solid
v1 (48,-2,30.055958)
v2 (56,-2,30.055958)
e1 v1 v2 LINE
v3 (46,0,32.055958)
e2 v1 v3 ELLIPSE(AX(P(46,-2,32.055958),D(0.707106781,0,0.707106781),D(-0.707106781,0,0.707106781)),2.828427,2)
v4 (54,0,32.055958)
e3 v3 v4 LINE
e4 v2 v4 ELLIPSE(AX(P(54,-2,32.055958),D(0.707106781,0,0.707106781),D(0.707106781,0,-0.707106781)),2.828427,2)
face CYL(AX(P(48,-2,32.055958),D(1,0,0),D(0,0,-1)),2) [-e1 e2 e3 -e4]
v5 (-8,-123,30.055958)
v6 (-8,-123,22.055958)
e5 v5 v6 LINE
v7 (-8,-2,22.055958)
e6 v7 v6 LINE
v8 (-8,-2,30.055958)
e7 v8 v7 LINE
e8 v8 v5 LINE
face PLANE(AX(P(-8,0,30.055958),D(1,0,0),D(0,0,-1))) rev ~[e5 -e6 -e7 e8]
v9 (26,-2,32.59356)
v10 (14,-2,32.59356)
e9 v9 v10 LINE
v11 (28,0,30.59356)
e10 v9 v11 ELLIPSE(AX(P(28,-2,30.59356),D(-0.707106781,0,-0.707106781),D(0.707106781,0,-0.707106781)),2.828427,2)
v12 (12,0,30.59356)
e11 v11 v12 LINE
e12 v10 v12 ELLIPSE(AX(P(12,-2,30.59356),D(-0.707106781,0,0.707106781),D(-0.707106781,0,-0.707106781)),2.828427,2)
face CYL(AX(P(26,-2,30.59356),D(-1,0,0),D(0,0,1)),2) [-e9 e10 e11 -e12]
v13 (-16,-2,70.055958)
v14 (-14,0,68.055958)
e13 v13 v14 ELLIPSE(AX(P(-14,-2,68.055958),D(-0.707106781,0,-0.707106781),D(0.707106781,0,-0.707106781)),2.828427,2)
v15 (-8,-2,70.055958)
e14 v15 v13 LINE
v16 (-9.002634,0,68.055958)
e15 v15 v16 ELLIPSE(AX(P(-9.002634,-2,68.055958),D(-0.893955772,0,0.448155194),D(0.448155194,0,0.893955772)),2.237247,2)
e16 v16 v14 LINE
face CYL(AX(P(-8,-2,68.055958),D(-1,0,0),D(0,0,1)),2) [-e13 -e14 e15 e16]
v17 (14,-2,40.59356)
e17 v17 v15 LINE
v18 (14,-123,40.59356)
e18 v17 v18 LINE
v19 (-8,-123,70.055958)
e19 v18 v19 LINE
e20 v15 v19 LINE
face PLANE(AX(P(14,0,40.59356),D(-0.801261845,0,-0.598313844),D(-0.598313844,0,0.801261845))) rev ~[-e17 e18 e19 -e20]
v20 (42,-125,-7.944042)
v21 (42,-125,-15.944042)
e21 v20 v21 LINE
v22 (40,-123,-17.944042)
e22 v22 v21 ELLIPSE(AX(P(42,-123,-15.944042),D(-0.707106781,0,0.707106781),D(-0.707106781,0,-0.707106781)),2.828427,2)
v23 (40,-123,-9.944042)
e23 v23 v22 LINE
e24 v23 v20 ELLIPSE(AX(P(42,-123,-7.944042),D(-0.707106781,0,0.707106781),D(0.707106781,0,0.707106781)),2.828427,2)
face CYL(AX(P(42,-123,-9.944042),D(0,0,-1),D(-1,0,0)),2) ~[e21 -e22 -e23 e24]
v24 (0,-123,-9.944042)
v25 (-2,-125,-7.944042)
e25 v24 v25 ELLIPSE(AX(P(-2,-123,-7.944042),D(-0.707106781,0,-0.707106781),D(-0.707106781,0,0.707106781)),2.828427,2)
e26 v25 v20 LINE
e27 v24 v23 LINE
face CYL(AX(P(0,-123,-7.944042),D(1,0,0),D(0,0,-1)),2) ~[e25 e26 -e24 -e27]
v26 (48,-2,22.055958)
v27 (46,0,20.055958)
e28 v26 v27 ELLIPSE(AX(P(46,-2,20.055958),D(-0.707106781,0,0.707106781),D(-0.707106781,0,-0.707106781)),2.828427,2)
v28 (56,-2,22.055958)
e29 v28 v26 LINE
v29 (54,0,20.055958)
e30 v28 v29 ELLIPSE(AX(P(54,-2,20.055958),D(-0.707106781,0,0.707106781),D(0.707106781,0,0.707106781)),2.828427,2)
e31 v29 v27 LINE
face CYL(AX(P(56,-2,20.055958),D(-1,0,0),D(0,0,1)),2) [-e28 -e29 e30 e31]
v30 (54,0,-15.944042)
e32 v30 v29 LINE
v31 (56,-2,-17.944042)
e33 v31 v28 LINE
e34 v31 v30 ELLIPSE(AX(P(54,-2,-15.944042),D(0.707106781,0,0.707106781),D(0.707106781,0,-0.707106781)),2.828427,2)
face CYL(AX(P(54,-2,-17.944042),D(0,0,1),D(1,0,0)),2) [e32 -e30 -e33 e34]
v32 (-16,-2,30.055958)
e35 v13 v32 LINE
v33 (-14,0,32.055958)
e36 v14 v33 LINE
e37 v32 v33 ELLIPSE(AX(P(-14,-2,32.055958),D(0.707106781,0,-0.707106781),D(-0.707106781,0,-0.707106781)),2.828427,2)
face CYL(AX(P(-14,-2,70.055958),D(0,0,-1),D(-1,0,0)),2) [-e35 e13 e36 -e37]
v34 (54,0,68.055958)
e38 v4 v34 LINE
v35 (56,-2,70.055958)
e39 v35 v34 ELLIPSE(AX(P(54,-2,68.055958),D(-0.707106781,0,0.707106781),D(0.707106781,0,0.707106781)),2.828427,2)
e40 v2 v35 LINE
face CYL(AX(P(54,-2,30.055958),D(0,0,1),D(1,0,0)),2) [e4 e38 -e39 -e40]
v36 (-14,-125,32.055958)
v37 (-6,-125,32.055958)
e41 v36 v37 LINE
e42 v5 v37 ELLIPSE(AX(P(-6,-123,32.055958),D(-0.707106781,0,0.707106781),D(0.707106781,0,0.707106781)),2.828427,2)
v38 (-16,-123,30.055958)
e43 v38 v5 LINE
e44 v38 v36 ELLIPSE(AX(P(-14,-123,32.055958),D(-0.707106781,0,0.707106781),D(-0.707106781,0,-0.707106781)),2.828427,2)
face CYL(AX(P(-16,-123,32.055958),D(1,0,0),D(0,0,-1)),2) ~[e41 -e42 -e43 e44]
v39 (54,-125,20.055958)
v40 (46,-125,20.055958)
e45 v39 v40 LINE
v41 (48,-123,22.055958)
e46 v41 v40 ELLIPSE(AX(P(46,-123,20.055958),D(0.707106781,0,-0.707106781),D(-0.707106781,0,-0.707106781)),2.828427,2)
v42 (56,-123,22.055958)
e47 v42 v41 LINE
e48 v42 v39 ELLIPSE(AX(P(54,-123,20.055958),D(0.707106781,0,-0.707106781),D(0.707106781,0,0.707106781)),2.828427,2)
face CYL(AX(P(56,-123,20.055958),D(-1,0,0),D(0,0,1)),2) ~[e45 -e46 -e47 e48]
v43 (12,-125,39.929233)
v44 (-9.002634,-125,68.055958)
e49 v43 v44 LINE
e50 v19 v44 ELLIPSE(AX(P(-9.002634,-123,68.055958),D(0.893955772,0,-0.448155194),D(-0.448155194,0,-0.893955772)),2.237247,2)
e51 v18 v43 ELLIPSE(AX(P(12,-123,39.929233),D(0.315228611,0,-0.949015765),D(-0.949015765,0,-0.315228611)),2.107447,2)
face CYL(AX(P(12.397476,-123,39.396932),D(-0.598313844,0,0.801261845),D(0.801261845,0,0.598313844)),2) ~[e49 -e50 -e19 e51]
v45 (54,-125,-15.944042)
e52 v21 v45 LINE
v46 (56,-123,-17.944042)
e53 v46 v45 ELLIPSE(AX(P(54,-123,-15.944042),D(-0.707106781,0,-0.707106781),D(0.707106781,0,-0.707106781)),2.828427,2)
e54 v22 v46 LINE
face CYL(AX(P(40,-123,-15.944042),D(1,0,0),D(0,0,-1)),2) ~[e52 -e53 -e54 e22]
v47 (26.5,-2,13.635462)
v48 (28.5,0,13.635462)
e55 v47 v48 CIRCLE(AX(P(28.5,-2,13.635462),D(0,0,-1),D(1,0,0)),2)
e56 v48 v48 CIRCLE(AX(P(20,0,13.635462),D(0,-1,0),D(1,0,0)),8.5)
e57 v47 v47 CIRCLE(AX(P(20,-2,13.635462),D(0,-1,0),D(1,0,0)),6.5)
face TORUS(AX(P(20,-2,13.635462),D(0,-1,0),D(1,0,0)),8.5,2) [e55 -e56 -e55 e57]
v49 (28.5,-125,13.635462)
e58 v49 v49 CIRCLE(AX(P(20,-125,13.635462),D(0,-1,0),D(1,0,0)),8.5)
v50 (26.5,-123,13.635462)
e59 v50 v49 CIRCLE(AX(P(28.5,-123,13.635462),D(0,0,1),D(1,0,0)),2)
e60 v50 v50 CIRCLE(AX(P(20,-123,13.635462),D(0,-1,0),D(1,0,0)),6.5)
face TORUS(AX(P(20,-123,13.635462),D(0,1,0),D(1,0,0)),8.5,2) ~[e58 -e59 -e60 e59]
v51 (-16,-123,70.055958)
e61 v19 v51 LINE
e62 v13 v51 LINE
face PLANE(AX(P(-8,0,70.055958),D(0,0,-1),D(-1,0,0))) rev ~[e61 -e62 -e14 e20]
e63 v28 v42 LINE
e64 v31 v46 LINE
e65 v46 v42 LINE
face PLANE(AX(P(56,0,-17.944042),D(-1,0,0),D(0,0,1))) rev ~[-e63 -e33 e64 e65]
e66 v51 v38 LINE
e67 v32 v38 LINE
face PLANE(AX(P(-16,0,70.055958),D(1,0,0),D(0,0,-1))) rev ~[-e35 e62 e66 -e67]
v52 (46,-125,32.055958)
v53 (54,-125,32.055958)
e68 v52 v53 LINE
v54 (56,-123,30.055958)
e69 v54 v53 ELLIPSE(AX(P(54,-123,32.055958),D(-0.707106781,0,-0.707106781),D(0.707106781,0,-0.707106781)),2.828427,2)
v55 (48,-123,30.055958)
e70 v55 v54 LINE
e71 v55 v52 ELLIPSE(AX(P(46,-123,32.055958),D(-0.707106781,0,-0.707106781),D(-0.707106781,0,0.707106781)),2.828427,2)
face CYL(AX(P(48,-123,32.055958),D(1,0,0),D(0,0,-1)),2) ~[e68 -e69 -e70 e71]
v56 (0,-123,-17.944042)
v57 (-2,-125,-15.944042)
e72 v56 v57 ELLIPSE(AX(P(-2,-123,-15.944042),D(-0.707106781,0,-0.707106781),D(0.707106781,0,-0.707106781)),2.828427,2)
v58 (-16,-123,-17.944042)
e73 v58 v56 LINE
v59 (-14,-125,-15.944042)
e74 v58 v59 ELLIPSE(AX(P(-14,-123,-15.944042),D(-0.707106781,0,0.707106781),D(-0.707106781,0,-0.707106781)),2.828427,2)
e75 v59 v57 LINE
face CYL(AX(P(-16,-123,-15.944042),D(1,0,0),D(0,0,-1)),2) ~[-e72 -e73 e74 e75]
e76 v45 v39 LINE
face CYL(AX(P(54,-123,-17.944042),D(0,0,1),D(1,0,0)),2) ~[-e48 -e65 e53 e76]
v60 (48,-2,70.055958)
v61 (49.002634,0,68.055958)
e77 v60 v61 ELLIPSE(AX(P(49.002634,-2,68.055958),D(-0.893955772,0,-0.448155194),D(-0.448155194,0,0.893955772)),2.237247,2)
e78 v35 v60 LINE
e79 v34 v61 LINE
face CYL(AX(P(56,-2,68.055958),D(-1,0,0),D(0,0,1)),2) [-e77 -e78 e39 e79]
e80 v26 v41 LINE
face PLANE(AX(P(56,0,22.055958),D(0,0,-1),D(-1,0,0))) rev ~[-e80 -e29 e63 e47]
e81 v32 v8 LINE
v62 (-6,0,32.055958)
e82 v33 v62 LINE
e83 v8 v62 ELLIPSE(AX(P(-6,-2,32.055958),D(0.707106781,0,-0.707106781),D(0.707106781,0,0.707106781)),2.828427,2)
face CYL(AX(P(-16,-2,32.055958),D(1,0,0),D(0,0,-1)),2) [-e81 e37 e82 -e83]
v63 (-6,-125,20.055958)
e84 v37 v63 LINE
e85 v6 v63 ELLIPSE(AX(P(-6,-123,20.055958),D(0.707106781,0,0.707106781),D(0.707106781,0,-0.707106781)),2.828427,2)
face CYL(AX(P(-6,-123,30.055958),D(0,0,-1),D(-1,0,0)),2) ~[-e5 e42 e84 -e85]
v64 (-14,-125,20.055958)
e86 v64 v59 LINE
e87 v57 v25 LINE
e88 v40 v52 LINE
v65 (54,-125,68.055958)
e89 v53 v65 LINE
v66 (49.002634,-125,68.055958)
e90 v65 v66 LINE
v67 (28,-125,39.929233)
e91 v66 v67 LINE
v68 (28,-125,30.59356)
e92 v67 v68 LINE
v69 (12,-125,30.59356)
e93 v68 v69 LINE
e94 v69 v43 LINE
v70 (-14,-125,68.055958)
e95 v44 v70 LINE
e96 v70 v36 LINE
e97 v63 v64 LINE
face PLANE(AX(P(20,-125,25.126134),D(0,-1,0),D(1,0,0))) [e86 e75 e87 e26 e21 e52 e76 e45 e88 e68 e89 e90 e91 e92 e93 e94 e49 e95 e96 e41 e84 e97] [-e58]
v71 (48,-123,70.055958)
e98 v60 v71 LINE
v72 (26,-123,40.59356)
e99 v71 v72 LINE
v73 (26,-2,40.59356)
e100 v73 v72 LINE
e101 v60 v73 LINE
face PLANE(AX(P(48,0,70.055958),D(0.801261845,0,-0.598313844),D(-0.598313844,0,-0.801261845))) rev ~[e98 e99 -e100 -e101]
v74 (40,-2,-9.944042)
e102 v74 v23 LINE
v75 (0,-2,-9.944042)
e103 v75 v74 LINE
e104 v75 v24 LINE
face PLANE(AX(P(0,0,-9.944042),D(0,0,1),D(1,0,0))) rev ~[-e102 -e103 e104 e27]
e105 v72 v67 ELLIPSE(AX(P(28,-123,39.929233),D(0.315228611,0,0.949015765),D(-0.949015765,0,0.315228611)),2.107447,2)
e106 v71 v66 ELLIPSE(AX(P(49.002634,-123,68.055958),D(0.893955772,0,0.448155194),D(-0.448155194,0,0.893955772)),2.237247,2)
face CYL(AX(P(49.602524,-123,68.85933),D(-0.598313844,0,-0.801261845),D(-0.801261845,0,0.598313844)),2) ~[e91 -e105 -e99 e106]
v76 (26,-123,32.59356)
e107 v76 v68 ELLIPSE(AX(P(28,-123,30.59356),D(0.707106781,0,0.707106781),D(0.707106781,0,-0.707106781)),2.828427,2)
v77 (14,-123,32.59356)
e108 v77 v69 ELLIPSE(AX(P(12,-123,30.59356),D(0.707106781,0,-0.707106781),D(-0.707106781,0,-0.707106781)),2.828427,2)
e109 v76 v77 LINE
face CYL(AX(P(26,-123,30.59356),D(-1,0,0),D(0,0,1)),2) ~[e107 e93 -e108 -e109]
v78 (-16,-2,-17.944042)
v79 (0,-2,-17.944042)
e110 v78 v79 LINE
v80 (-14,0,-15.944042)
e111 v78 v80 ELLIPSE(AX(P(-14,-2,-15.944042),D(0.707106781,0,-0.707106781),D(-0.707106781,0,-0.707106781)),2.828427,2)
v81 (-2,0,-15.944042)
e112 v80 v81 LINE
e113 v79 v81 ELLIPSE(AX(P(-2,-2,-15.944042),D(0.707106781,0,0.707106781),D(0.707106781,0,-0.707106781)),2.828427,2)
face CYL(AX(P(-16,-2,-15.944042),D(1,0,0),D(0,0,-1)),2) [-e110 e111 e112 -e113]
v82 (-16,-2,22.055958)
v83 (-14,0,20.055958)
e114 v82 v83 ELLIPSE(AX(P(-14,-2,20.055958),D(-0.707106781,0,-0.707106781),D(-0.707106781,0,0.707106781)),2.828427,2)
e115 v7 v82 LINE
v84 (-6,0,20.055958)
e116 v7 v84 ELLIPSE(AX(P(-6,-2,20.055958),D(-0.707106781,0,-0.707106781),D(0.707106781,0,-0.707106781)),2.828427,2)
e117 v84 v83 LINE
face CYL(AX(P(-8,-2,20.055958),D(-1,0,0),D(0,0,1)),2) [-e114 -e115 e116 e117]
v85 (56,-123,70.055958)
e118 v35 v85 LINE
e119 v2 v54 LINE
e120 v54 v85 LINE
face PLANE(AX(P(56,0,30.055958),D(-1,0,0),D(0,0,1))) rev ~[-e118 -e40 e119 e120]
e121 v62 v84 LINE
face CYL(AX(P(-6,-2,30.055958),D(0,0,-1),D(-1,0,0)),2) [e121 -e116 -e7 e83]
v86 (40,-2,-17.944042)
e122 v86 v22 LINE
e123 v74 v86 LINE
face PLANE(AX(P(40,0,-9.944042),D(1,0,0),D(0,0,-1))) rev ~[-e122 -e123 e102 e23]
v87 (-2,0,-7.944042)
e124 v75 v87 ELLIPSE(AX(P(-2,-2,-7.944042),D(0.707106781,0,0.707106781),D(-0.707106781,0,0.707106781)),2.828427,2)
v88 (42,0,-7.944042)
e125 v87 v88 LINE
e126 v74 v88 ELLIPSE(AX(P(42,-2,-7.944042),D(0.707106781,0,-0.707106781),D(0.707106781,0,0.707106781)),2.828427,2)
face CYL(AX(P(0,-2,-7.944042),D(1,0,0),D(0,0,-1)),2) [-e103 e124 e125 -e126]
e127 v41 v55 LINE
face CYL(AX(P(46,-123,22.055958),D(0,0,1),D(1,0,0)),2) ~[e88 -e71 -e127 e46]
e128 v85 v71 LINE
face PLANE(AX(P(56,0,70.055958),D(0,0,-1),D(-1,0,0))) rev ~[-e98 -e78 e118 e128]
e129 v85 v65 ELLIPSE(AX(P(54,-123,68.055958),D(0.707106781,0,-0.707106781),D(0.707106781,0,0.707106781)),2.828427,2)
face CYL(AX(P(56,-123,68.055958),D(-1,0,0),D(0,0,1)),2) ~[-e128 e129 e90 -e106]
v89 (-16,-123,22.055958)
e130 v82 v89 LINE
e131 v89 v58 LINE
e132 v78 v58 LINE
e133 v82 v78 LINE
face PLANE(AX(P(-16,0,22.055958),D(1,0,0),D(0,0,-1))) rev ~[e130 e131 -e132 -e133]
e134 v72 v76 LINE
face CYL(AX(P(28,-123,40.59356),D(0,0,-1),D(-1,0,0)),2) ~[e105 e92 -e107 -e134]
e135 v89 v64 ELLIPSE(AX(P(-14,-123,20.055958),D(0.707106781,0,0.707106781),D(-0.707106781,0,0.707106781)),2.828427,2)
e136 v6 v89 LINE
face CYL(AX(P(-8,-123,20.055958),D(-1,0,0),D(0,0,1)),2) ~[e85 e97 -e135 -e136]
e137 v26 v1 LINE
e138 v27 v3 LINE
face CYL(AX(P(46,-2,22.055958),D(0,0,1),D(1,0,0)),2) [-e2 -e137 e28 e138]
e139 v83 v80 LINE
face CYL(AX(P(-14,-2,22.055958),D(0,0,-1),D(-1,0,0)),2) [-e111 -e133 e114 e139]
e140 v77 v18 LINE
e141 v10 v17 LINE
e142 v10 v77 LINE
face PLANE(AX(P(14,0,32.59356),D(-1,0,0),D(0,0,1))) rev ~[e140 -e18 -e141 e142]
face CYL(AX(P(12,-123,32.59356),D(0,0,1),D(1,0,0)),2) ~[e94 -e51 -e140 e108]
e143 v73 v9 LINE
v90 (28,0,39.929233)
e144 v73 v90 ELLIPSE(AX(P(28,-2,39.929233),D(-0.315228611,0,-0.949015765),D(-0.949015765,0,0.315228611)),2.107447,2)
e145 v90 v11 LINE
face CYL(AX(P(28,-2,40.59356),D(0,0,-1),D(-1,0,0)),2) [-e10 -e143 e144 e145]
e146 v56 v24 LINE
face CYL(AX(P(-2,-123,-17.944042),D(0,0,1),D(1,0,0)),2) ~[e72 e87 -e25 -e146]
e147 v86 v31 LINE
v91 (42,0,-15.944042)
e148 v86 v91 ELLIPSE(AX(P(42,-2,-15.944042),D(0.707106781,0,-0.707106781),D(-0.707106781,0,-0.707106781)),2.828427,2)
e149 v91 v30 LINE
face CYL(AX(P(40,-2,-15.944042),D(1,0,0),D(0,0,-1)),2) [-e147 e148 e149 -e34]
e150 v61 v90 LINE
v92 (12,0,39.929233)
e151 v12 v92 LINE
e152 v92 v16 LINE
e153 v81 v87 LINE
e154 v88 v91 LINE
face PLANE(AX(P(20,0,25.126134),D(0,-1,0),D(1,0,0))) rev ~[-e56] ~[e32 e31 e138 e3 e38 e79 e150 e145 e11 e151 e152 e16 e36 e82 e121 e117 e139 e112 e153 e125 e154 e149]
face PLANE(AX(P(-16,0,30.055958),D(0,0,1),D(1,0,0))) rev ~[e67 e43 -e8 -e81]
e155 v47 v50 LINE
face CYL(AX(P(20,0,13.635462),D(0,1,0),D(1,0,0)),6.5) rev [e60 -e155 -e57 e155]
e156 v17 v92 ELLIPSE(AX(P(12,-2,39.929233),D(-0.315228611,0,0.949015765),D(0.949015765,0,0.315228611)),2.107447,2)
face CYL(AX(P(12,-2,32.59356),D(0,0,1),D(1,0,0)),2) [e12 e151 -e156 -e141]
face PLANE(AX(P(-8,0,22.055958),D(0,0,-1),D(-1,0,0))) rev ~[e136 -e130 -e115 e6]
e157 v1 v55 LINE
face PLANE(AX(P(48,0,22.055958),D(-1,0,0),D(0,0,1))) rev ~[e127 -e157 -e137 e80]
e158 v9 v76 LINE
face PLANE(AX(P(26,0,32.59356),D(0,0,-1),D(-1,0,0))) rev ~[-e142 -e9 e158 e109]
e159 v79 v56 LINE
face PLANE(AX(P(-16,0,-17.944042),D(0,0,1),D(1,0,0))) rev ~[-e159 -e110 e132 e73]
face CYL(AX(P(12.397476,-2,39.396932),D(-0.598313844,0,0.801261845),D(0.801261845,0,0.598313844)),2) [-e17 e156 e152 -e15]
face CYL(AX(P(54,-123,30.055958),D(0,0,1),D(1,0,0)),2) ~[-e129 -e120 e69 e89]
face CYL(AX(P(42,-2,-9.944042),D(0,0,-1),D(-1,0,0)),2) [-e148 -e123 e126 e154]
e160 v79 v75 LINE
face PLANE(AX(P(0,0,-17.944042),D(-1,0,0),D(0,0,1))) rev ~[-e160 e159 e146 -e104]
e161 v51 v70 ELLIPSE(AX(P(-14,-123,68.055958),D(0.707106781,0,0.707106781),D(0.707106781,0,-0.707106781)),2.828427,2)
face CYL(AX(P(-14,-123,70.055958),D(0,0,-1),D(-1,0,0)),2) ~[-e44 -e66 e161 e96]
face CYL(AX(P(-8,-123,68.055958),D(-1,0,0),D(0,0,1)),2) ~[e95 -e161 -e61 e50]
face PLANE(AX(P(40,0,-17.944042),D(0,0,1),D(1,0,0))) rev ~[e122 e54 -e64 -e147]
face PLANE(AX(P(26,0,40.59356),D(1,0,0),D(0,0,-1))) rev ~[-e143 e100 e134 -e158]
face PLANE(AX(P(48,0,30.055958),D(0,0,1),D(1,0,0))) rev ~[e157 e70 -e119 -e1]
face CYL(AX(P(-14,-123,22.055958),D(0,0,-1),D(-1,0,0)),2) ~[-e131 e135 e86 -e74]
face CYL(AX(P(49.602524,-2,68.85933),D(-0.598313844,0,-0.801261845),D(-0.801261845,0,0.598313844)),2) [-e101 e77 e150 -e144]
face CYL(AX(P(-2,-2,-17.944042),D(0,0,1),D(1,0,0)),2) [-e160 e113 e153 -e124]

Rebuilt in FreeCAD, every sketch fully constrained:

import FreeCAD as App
import Part
import Sketcher
from FreeCAD import Vector


def edges_at(feature, points):
    """Names of the edges that pass closest to the given points."""
    edges = feature.Shape.Edges
    near = lambda p: min(range(len(edges)), key=lambda i: edges[i].distToShape(Part.Vertex(*p))[0])
    return sorted({f"Edge{near(p) + 1}" for p in points})


def add_polygon(sketch, points):
    """Adds a closed chain of lines whose ends are joined by coincident constraints."""
    first, n = sketch.GeometryCount, len(points)
    for a, b in zip(points, points[1:] + points[:1]):
        sketch.addGeometry(Part.LineSegment(App.Vector(*a, 0), App.Vector(*b, 0)), False)
    for i in range(n):
        sketch.addConstraint(Sketcher.Constraint("Coincident", first + i, 2, first + (i + 1) % n, 1))

doc = App.newDocument("Part")
body = doc.addObject("PartDesign::Body", "Body")

sketch1 = body.newObject("Sketcher::SketchObject", "Sketch")
sketch1.AttachmentSupport = (doc.getObject("XZ_Plane"), [""])
sketch1.MapMode = "FlatFace"
add_polygon(sketch1, [(-16, 22), (-16, -18), (0, -18), (0, -10), (40, -10), (40, -18), (56, -18), (56, 22), (48, 22), (48, 30), (56, 30), (56, 70), (48, 70), (26, 41), (26, 33), (14, 33), (14, 41), (-8, 70), (-16, 70), (-16, 30), (-8, 30), (-8, 22)])
sketch1.addGeometry(Part.Circle(Vector(20, 14, 0), Vector(0, 0, 1), 6), False)
sketch1.addConstraint([
    Sketcher.Constraint("Vertical", 0),
    Sketcher.Constraint("Horizontal", 1),
    Sketcher.Constraint("Vertical", 2),
    Sketcher.Constraint("Horizontal", 3),
    Sketcher.Constraint("Vertical", 4),
    Sketcher.Constraint("Horizontal", 5),
    Sketcher.Constraint("Vertical", 6),
    Sketcher.Constraint("Horizontal", 7),
    Sketcher.Constraint("Vertical", 8),
    Sketcher.Constraint("Horizontal", 9),
    Sketcher.Constraint("Vertical", 10),
    Sketcher.Constraint("Horizontal", 11),
    Sketcher.Constraint("Vertical", 13),
    Sketcher.Constraint("Horizontal", 14),
    Sketcher.Constraint("Vertical", 15),
    Sketcher.Constraint("Horizontal", 17),
    Sketcher.Constraint("Vertical", 18),
    Sketcher.Constraint("Horizontal", 19),
    Sketcher.Constraint("Vertical", 20),
    Sketcher.Constraint("Horizontal", 21),
    Sketcher.Constraint("PointOnObject", 1, 2, -2),
    Sketcher.Constraint("Horizontal", 1, 2, 4, 2),
    Sketcher.Constraint("Horizontal", 12, 2, 15, 2),
    Sketcher.Constraint("Horizontal", 11, 2, 16, 2),
    Sketcher.Constraint("Horizontal", 9, 2, 18, 2),
    Sketcher.Constraint("Horizontal", 7, 2, 20, 2),
    Sketcher.Constraint("Vertical", 6, 2, 9, 2),
    Sketcher.Constraint("Vertical", 8, 2, 11, 2),
    Sketcher.Constraint("Vertical", 0, 2, 17, 2),
    Sketcher.Constraint("Vertical", 16, 2, 19, 2),
    Sketcher.Constraint("Equal", 1, 5),
    Sketcher.Constraint("Equal", 11, 17),
    Sketcher.Constraint("Equal", 3, 0),
    Sketcher.Constraint("Equal", 21, 2),
    Sketcher.Constraint("Equal", 4, 8),
    Sketcher.Constraint("Equal", 6, 10),
    Sketcher.Constraint("Equal", 8, 13),
    Sketcher.Constraint("Equal", 12, 16),
    Sketcher.Constraint("Diameter", 22, 13.0),
    Sketcher.Constraint("DistanceX", 1, 1, 1, 2, 16.0),
    Sketcher.Constraint("DistanceX", 3, 1, 3, 2, 40.0),
    Sketcher.Constraint("DistanceX", 7, 2, 7, 1, 8.0),
    Sketcher.Constraint("DistanceX", 14, 2, 14, 1, 12.0),
    Sketcher.Constraint("DistanceX", -1, 1, 22, 3, 20.0),
    Sketcher.Constraint("Distance", 12, 36.77),
    Sketcher.Constraint("DistanceY", 0, 2, -1, 1, 17.944042),
    Sketcher.Constraint("DistanceY", -1, 1, 22, 3, 13.635462),
])
pad1 = body.newObject("PartDesign::Pad", "Pad")
pad1.Profile = sketch1
pad1.Length = 125
doc.recompute()

fillet = body.newObject("PartDesign::Fillet", "Fillet")
fillet.Base = (pad1, edges_at(pad1, [
    (-16, -125, 50.056),
    (-12, -125, 70.056),
    (3, -125, 55.325),
    (-12, -125, 30.056),
    (-8, -125, 26.056),
    (-12, -125, 22.056),
    (-16, -125, 2.056),
    (-8, -125, -17.944),
    (0, -125, -13.944),
    (20, -125, -9.944),
    (40, -125, -13.944),
    (48, -125, -17.944),
    (56, -125, 2.056),
    (52, -125, 22.056),
    (48, -125, 26.056),
    (52, -125, 30.056),
    (56, -125, 50.056),
    (52, -125, 70.056),
    (37, -125, 55.325),
    (26, -125, 36.594),
    (20, -125, 32.594),
    (14, -125, 36.594),
    (13.5, -125, 13.635),
    (-16, 0, 50.056),
    (-12, 0, 30.056),
    (-8, 0, 26.056),
    (-12, 0, 22.056),
    (-16, 0, 2.056),
    (-8, 0, -17.944),
    (0, 0, -13.944),
    (20, 0, -9.944),
    (40, 0, -13.944),
    (48, 0, -17.944),
    (56, 0, 2.056),
    (52, 0, 22.056),
    (48, 0, 26.056),
    (52, 0, 30.056),
    (56, 0, 50.056),
    (52, 0, 70.056),
    (37, 0, 55.325),
    (26, 0, 36.594),
    (20, 0, 32.594),
    (14, 0, 36.594),
    (3, 0, 55.325),
    (-12, 0, 70.056),
    (13.5, 0, 13.635),
]))
fillet.Radius = 2

doc.recompute()
